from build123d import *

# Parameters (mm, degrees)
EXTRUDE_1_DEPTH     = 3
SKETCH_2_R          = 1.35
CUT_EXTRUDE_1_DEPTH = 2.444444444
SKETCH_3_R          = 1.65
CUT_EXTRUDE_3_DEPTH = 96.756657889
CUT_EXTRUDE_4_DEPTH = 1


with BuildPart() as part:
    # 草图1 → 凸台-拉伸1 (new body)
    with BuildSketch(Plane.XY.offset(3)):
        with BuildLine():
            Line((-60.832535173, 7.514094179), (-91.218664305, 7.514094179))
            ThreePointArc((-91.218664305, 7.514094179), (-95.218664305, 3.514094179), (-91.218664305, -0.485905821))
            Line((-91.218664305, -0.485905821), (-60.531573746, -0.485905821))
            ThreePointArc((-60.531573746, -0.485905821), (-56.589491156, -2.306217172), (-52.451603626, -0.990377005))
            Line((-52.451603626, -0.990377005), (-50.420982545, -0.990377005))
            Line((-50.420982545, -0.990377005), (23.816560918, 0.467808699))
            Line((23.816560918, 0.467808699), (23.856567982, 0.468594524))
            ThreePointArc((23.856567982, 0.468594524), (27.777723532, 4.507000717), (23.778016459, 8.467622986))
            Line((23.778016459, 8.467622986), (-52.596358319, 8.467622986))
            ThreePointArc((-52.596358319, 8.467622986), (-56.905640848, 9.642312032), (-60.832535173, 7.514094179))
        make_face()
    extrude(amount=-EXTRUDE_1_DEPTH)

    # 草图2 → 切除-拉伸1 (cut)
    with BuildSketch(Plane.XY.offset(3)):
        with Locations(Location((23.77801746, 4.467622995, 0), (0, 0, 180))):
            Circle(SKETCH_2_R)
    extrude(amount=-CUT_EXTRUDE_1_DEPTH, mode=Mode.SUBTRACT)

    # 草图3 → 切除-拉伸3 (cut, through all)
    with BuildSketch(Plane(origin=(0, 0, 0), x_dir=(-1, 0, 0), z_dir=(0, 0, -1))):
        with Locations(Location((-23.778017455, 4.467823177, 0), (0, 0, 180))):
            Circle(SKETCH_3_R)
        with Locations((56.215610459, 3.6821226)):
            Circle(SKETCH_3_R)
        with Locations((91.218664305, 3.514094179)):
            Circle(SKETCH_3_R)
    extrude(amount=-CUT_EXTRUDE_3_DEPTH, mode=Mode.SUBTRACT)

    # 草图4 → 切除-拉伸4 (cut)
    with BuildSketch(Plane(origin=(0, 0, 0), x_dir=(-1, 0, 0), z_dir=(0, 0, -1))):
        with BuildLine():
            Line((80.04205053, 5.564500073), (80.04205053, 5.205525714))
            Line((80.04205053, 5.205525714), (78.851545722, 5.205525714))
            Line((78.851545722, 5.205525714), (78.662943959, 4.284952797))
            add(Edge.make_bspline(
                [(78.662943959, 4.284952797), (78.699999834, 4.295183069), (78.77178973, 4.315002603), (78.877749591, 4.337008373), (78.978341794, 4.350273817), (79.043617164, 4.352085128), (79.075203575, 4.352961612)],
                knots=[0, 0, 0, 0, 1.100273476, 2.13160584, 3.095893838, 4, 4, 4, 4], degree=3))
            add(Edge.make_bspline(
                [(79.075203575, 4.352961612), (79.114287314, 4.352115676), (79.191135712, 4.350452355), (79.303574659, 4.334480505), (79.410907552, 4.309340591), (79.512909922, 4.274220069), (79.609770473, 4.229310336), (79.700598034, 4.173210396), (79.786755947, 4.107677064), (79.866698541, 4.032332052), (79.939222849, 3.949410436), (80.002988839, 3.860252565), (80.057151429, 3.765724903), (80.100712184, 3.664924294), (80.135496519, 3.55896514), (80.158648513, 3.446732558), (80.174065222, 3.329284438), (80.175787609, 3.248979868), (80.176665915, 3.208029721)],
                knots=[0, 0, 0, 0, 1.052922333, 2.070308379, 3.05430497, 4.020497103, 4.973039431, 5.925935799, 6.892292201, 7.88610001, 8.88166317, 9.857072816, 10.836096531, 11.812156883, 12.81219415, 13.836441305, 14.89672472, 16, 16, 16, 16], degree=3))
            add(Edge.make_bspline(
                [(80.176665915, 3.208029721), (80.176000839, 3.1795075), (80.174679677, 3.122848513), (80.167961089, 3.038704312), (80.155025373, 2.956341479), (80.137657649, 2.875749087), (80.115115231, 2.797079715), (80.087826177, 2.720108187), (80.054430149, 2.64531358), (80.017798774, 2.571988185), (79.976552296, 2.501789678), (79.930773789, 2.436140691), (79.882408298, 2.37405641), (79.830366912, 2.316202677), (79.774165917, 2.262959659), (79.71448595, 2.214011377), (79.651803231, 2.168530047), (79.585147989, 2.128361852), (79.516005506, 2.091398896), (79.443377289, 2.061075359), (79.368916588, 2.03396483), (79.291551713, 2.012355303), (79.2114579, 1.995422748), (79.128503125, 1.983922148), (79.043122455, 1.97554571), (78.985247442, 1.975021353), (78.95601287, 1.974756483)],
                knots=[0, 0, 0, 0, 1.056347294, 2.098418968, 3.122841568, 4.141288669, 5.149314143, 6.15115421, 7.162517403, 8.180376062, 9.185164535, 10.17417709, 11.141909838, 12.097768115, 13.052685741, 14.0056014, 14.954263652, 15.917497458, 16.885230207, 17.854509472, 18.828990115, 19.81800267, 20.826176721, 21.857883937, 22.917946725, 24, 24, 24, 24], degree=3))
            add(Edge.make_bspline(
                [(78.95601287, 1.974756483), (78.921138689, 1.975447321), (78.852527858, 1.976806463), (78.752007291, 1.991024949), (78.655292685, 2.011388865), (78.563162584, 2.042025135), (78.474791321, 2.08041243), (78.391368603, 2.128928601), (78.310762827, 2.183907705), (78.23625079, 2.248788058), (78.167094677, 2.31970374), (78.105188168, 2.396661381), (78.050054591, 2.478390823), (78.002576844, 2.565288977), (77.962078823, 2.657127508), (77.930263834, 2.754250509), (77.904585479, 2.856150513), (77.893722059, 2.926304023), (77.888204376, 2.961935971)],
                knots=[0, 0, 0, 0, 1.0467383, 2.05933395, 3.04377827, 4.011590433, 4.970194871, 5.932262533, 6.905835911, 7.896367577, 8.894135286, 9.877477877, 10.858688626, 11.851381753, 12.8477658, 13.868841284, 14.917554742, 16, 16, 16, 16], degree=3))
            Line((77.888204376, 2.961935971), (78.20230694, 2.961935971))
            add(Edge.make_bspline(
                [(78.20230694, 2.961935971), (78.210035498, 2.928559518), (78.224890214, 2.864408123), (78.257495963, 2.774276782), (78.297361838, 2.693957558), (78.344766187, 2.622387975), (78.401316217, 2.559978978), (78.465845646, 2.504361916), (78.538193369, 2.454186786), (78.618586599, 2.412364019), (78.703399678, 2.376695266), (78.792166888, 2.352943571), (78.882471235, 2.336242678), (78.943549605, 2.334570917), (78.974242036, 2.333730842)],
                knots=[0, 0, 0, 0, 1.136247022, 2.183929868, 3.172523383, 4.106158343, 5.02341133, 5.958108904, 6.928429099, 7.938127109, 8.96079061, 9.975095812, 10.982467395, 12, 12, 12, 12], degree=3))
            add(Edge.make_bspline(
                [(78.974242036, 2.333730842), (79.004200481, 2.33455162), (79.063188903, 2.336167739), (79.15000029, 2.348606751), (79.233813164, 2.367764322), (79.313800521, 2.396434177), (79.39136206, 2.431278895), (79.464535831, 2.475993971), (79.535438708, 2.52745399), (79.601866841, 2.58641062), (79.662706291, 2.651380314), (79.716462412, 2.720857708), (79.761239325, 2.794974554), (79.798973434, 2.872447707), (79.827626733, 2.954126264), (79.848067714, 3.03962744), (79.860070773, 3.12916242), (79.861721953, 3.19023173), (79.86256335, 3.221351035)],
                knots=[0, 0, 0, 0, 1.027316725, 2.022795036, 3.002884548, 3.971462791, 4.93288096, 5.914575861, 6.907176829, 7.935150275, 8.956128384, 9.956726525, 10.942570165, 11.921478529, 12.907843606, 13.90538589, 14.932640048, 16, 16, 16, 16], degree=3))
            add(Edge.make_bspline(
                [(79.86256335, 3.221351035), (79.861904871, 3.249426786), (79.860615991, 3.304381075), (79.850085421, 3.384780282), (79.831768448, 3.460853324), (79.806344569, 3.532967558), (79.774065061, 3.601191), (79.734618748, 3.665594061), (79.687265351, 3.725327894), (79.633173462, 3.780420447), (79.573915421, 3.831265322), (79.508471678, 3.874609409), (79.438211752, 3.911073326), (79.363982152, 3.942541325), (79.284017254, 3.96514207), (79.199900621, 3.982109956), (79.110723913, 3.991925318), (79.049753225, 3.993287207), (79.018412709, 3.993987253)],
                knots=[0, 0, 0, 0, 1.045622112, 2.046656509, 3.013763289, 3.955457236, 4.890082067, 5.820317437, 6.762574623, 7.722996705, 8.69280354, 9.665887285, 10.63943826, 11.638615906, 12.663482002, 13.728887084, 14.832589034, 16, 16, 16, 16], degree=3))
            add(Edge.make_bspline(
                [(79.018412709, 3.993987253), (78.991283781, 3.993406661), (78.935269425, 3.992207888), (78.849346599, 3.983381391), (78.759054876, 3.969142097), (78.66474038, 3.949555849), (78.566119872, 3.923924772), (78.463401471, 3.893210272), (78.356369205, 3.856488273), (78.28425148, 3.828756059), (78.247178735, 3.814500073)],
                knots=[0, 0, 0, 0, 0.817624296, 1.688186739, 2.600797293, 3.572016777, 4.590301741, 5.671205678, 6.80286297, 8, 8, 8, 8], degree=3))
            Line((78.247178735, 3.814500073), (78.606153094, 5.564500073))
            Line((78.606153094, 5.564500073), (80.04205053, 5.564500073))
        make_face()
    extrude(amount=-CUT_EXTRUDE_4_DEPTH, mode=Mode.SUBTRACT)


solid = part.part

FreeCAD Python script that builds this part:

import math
import FreeCAD as App
import Part
import Sketcher

doc = App.newDocument("Part")
params = doc.addObject("Spreadsheet::Sheet", "Params")
for row, (alias, value) in enumerate([
    ("sketch1_radius", "4 mm"),
    ("sketch1_radius2", "6 mm"),
    ("pad1_length", "3 mm"),
    ("sketch2_diameter", "2.7 mm"),
    ("pocket1_length", "2.444444 mm"),
    ("sketch3_diameter", "3.3 mm"),
    ("pocket3_length", "1 mm"),
], start=1):
    params.set(f"A{row}", alias)
    params.set(f"B{row}", "=" + value)
    params.setAlias(f"B{row}", alias)

body = doc.addObject("PartDesign::Body", "Body")

# Sketch on XY plane
sketch1 = body.newObject("Sketcher::SketchObject", "Sketch")
sketch1.AttachmentSupport = (doc.getObject("XY_Plane"), [""])
sketch1.MapMode = "FlatFace"
sketch1.AttachmentOffset = App.Placement(App.Vector(0, 0, 3), App.Rotation())
sketch1.addGeometry([
    Part.LineSegment(App.Vector(-60.833, 7.514, 0), App.Vector(-91.219, 7.514, 0)),  # 0
    Part.ArcOfCircle(Part.Circle(App.Vector(-91.219, 3.514, 0), App.Vector(0, 0, 1), 4), math.radians(90), math.radians(270)),  # 1
    Part.LineSegment(App.Vector(-91.219, -0.486, 0), App.Vector(-60.532, -0.486, 0)),  # 2
    Part.ArcOfCircle(Part.Circle(App.Vector(-56.216, 3.682, 0), App.Vector(0, 0, 1), 6), math.radians(-136), math.radians(-51)),  # 3
    Part.LineSegment(App.Vector(-52.452, -0.99, 0), App.Vector(-50.421, -0.99, 0)),  # 4
    Part.LineSegment(App.Vector(-50.421, -0.99, 0), App.Vector(23.817, 0.468, 0)),  # 5
    Part.LineSegment(App.Vector(23.817, 0.468, 0), App.Vector(23.857, 0.469, 0)),  # 6
    Part.ArcOfCircle(Part.Circle(App.Vector(23.778, 4.468, 0), App.Vector(0, 0, 1), 4), math.radians(-89), math.radians(90)),  # 7
    Part.LineSegment(App.Vector(23.778, 8.468, 0), App.Vector(-52.596, 8.468, 0)),  # 8
    Part.ArcOfCircle(Part.Circle(App.Vector(-56.216, 3.682, 0), App.Vector(0, 0, 1), 6), math.radians(53), math.radians(140)),  # 9
], False)
sketch1.addConstraint([
    Sketcher.Constraint("Tangent", 0, 2, 1, 1),
    Sketcher.Constraint("Tangent", 1, 2, 2, 1),
    Sketcher.Constraint("Coincident", 2, 2, 3, 1),
    Sketcher.Constraint("Coincident", 3, 2, 4, 1),
    Sketcher.Constraint("Coincident", 4, 2, 5, 1),
    Sketcher.Constraint("Coincident", 5, 2, 6, 1),
    Sketcher.Constraint("Tangent", 6, 2, 7, 1),
    Sketcher.Constraint("Tangent", 7, 2, 8, 1),
    Sketcher.Constraint("Coincident", 8, 2, 9, 1),
    Sketcher.Constraint("Coincident", 9, 2, 0, 1),
    Sketcher.Constraint("Horizontal", 0),
    Sketcher.Constraint("Horizontal", 2),
    Sketcher.Constraint("Horizontal", 4),
    Sketcher.Constraint("Horizontal", 8),
    Sketcher.Constraint("Coincident", 9, 3, 3, 3),
    Sketcher.Constraint("Equal", 3, 9),
    Sketcher.Constraint("Parallel", 5, 6),
    Sketcher.Constraint("Radius", 1, 4.0),
    Sketcher.Constraint("Radius", 3, 6.0),
    Sketcher.Constraint("Radius", 7, 3.9999),
    Sketcher.Constraint("DistanceX", 4, 2, 7, 2, 74.198999),
    Sketcher.Constraint("DistanceY", 4, 2, 7, 2, 9.458),
    Sketcher.Constraint("DistanceX", 0, 2, 0, 1, 30.386129),
    Sketcher.Constraint("DistanceX", 2, 1, 2, 2, 30.687091),
    Sketcher.Constraint("DistanceX", 4, 1, 4, 2, 2.030621),
    Sketcher.Constraint("DistanceY", 3, 3, 7, 3, 0.7856),
    Sketcher.Constraint("DistanceX", 3, 3, -1, 1, 56.21561),
    Sketcher.Constraint("DistanceX", -1, 1, 5, 2, 23.816561),
    Sketcher.Constraint("DistanceY", -1, 1, 5, 2, 0.467809),
])
sketch1.setExpression("Constraints[17]", "Params.sketch1_radius")
sketch1.setExpression("Constraints[18]", "Params.sketch1_radius2")
pad1 = body.newObject("PartDesign::Pad", "Pad")
pad1.Profile = sketch1
pad1.setExpression("Length", "Params.pad1_length")
pad1.Reversed = True

# Sketch on XY plane
sketch2 = body.newObject("Sketcher::SketchObject", "Sketch001")
sketch2.AttachmentSupport = (doc.getObject("XY_Plane"), [""])
sketch2.MapMode = "FlatFace"
sketch2.AttachmentOffset = App.Placement(App.Vector(0, 0, 3), App.Rotation())
sketch2.addGeometry(Part.Circle(App.Vector(23.8, 4.5, 0), App.Vector(0, 0, 1), 1.4), False)
sketch2.addConstraint([
    Sketcher.Constraint("Diameter", 0, 2.7),
    Sketcher.Constraint("DistanceX", -1, 1, 0, 3, 23.778017),
    Sketcher.Constraint("DistanceY", -1, 1, 0, 3, 4.467623),
])
sketch2.setExpression("Constraints[0]", "Params.sketch2_diameter")
pocket1 = body.newObject("PartDesign::Pocket", "Pocket")
pocket1.Profile = sketch2
pocket1.setExpression("Length", "Params.pocket1_length")

# Sketch on XY plane
sketch3 = body.newObject("Sketcher::SketchObject", "Sketch002")
sketch3.AttachmentSupport = (doc.getObject("XY_Plane"), [""])
sketch3.MapMode = "FlatFace"
sketch3.addGeometry([
    Part.Circle(App.Vector(23.8, 4.5, 0), App.Vector(0, 0, 1), 1.6),
    Part.Circle(App.Vector(-56.2, 3.7, 0), App.Vector(0, 0, 1), 1.6),
    Part.Circle(App.Vector(-91.2, 3.5, 0), App.Vector(0, 0, 1), 1.6),
], False)
sketch3.addConstraint([
    Sketcher.Constraint("Equal", 0, 1),
    Sketcher.Constraint("Equal", 1, 2),
    Sketcher.Constraint("Diameter", 0, 3.3),
    Sketcher.Constraint("DistanceY", 1, 3, 0, 3, 0.785701),
    Sketcher.Constraint("DistanceX", 1, 3, -1, 1, 56.21561),
    Sketcher.Constraint("DistanceY", 2, 3, 1, 3, 0.168028),
    Sketcher.Constraint("DistanceX", 2, 3, 0, 3, 114.996682),
    Sketcher.Constraint("DistanceX", -1, 1, 0, 3, 23.778017),
    Sketcher.Constraint("DistanceY", -1, 1, 0, 3, 4.467823),
])
sketch3.setExpression("Constraints[2]", "Params.sketch3_diameter")
pocket2 = body.newObject("PartDesign::Pocket", "Pocket001")
pocket2.Profile = sketch3
pocket2.Type = "ThroughAll"
pocket2.Reversed = True

# Sketch on XY plane
sketch4 = body.newObject("Sketcher::SketchObject", "Sketch003")
sketch4.AttachmentSupport = (doc.getObject("XY_Plane"), [""])
sketch4.MapMode = "FlatFace"
sketch4.addGeometry([
    Part.LineSegment(App.Vector(-80.042051, 5.205526, 0), App.Vector(-80.042051, 5.5645, 0)),  # 0
    Part.LineSegment(App.Vector(-80.042051, 5.5645, 0), App.Vector(-78.606153, 5.5645, 0)),  # 1
    Part.LineSegment(App.Vector(-78.606153, 5.5645, 0), App.Vector(-78.247179, 3.8145, 0)),  # 2
    Part.BSplineCurve([App.Vector(-79.018413, 3.993987, 0), App.Vector(-78.991284, 3.993407, 0), App.Vector(-78.935269, 3.992208, 0), App.Vector(-78.849347, 3.983381, 0), App.Vector(-78.759055, 3.969142, 0), App.Vector(-78.66474, 3.949556, 0), App.Vector(-78.56612, 3.923925, 0), App.Vector(-78.463401, 3.89321, 0), App.Vector(-78.356369, 3.856488, 0), App.Vector(-78.284251, 3.828756, 0), App.Vector(-78.247179, 3.8145, 0)], [4, 1, 1, 1, 1, 1, 1, 1, 4], [0, 0.817624296, 1.688186739, 2.600797293, 3.572016777, 4.590301741, 5.671205678, 6.80286297, 8], False, 3, [1, 1, 1, 1, 1, 1, 1, 1, 1, 1, 1], False),  # 3
    Part.BSplineCurve([App.Vector(-79.862563, 3.221351, 0), App.Vector(-79.861905, 3.249427, 0), App.Vector(-79.860616, 3.304381, 0), App.Vector(-79.850085, 3.38478, 0), App.Vector(-79.831768, 3.460853, 0), App.Vector(-79.806345, 3.532968, 0), App.Vector(-79.774065, 3.601191, 0), App.Vector(-79.734619, 3.665594, 0), App.Vector(-79.687265, 3.725328, 0), App.Vector(-79.633173, 3.78042, 0), App.Vector(-79.573915, 3.831265, 0), App.Vector(-79.508472, 3.874609, 0), App.Vector(-79.438212, 3.911073, 0), App.Vector(-79.363982, 3.942541, 0), App.Vector(-79.284017, 3.965142, 0), App.Vector(-79.199901, 3.98211, 0), App.Vector(-79.110724, 3.991925, 0), App.Vector(-79.049753, 3.993287, 0), App.Vector(-79.018413, 3.993987, 0)], [4, 1, 1, 1, 1, 1, 1, 1, 1, 1, 1, 1, 1, 1, 1, 1, 4], [0, 1.045622112, 2.046656509, 3.013763289, 3.955457236, 4.890082067, 5.820317437, 6.762574623, 7.722996705, 8.69280354, 9.665887285, 10.63943826, 11.638615906, 12.663482002, 13.728887084, 14.832589034, 16], False, 3, [1, 1, 1, 1, 1, 1, 1, 1, 1, 1, 1, 1, 1, 1, 1, 1, 1, 1, 1], False),  # 4
    Part.BSplineCurve([App.Vector(-78.974242, 2.333731, 0), App.Vector(-79.0042, 2.334552, 0), App.Vector(-79.063189, 2.336168, 0), App.Vector(-79.15, 2.348607, 0), App.Vector(-79.233813, 2.367764, 0), App.Vector(-79.313801, 2.396434, 0), App.Vector(-79.391362, 2.431279, 0), App.Vector(-79.464536, 2.475994, 0), App.Vector(-79.535439, 2.527454, 0), App.Vector(-79.601867, 2.586411, 0), App.Vector(-79.662706, 2.65138, 0), App.Vector(-79.716462, 2.720858, 0), App.Vector(-79.761239, 2.794975, 0), App.Vector(-79.798973, 2.872448, 0), App.Vector(-79.827627, 2.954126, 0), App.Vector(-79.848068, 3.039627, 0), App.Vector(-79.860071, 3.129162, 0), App.Vector(-79.861722, 3.190232, 0), App.Vector(-79.862563, 3.221351, 0)], [4, 1, 1, 1, 1, 1, 1, 1, 1, 1, 1, 1, 1, 1, 1, 1, 4], [0, 1.027316725, 2.022795036, 3.002884548, 3.971462791, 4.93288096, 5.914575861, 6.907176829, 7.935150275, 8.956128384, 9.956726525, 10.942570165, 11.921478529, 12.907843606, 13.90538589, 14.932640048, 16], False, 3, [1, 1, 1, 1, 1, 1, 1, 1, 1, 1, 1, 1, 1, 1, 1, 1, 1, 1, 1], False),  # 5
    Part.BSplineCurve([App.Vector(-78.202307, 2.961936, 0), App.Vector(-78.210035, 2.92856, 0), App.Vector(-78.22489, 2.864408, 0), App.Vector(-78.257496, 2.774277, 0), App.Vector(-78.297362, 2.693958, 0), App.Vector(-78.344766, 2.622388, 0), App.Vector(-78.401316, 2.559979, 0), App.Vector(-78.465846, 2.504362, 0), App.Vector(-78.538193, 2.454187, 0), App.Vector(-78.618587, 2.412364, 0), App.Vector(-78.7034, 2.376695, 0), App.Vector(-78.792167, 2.352944, 0), App.Vector(-78.882471, 2.336243, 0), App.Vector(-78.94355, 2.334571, 0), App.Vector(-78.974242, 2.333731, 0)], [4, 1, 1, 1, 1, 1, 1, 1, 1, 1, 1, 1, 4], [0, 1.136247022, 2.183929868, 3.172523383, 4.106158343, 5.02341133, 5.958108904, 6.928429099, 7.938127109, 8.96079061, 9.975095812, 10.982467395, 12], False, 3, [1, 1, 1, 1, 1, 1, 1, 1, 1, 1, 1, 1, 1, 1, 1], False),  # 6
    Part.LineSegment(App.Vector(-78.202307, 2.961936, 0), App.Vector(-77.888204, 2.961936, 0)),  # 7
    Part.BSplineCurve([App.Vector(-78.956013, 1.974756, 0), App.Vector(-78.921139, 1.975447, 0), App.Vector(-78.852528, 1.976806, 0), App.Vector(-78.752007, 1.991025, 0), App.Vector(-78.655293, 2.011389, 0), App.Vector(-78.563163, 2.042025, 0), App.Vector(-78.474791, 2.080412, 0), App.Vector(-78.391369, 2.128929, 0), App.Vector(-78.310763, 2.183908, 0), App.Vector(-78.236251, 2.248788, 0), App.Vector(-78.167095, 2.319704, 0), App.Vector(-78.105188, 2.396661, 0), App.Vector(-78.050055, 2.478391, 0), App.Vector(-78.002577, 2.565289, 0), App.Vector(-77.962079, 2.657128, 0), App.Vector(-77.930264, 2.754251, 0), App.Vector(-77.904585, 2.856151, 0), App.Vector(-77.893722, 2.926304, 0), App.Vector(-77.888204, 2.961936, 0)], [4, 1, 1, 1, 1, 1, 1, 1, 1, 1, 1, 1, 1, 1, 1, 1, 4], [0, 1.0467383, 2.05933395, 3.04377827, 4.011590433, 4.970194871, 5.932262533, 6.905835911, 7.896367577, 8.894135286, 9.877477877, 10.858688626, 11.851381753, 12.8477658, 13.868841284, 14.917554742, 16], False, 3, [1, 1, 1, 1, 1, 1, 1, 1, 1, 1, 1, 1, 1, 1, 1, 1, 1, 1, 1], False),  # 8
    Part.BSplineCurve([App.Vector(-80.176666, 3.20803, 0), App.Vector(-80.176001, 3.179508, 0), App.Vector(-80.17468, 3.122849, 0), App.Vector(-80.167961, 3.038704, 0), App.Vector(-80.155025, 2.956341, 0), App.Vector(-80.137658, 2.875749, 0), App.Vector(-80.115115, 2.79708, 0), App.Vector(-80.087826, 2.720108, 0), App.Vector(-80.05443, 2.645314, 0), App.Vector(-80.017799, 2.571988, 0), App.Vector(-79.976552, 2.50179, 0), App.Vector(-79.930774, 2.436141, 0), App.Vector(-79.882408, 2.374056, 0), App.Vector(-79.830367, 2.316203, 0), App.Vector(-79.774166, 2.26296, 0), App.Vector(-79.714486, 2.214011, 0), App.Vector(-79.651803, 2.16853, 0), App.Vector(-79.585148, 2.128362, 0), App.Vector(-79.516006, 2.091399, 0), App.Vector(-79.443377, 2.061075, 0), App.Vector(-79.368917, 2.033965, 0), App.Vector(-79.291552, 2.012355, 0), App.Vector(-79.211458, 1.995423, 0), App.Vector(-79.128503, 1.983922, 0), App.Vector(-79.043122, 1.975546, 0), App.Vector(-78.985247, 1.975021, 0), App.Vector(-78.956013, 1.974756, 0)], [4, 1, 1, 1, 1, 1, 1, 1, 1, 1, 1, 1, 1, 1, 1, 1, 1, 1, 1, 1, 1, 1, 1, 1, 4], [0, 1.056347294, 2.098418968, 3.122841568, 4.141288669, 5.149314143, 6.15115421, 7.162517403, 8.180376062, 9.185164535, 10.17417709, 11.141909838, 12.097768115, 13.052685741, 14.0056014, 14.954263652, 15.917497458, 16.885230207, 17.854509472, 18.828990115, 19.81800267, 20.826176721, 21.857883937, 22.917946725, 24], False, 3, [1, 1, 1, 1, 1, 1, 1, 1, 1, 1, 1, 1, 1, 1, 1, 1, 1, 1, 1, 1, 1, 1, 1, 1, 1, 1, 1], False),  # 9
    Part.BSplineCurve([App.Vector(-79.075204, 4.352962, 0), App.Vector(-79.114287, 4.352116, 0), App.Vector(-79.191136, 4.350452, 0), App.Vector(-79.303575, 4.334481, 0), App.Vector(-79.410908, 4.309341, 0), App.Vector(-79.51291, 4.27422, 0), App.Vector(-79.60977, 4.22931, 0), App.Vector(-79.700598, 4.17321, 0), App.Vector(-79.786756, 4.107677, 0), App.Vector(-79.866699, 4.032332, 0), App.Vector(-79.939223, 3.94941, 0), App.Vector(-80.002989, 3.860253, 0), App.Vector(-80.057151, 3.765725, 0), App.Vector(-80.100712, 3.664924, 0), App.Vector(-80.135497, 3.558965, 0), App.Vector(-80.158649, 3.446733, 0), App.Vector(-80.174065, 3.329284, 0), App.Vector(-80.175788, 3.24898, 0), App.Vector(-80.176666, 3.20803, 0)], [4, 1, 1, 1, 1, 1, 1, 1, 1, 1, 1, 1, 1, 1, 1, 1, 4], [0, 1.052922333, 2.070308379, 3.05430497, 4.020497103, 4.973039431, 5.925935799, 6.892292201, 7.88610001, 8.88166317, 9.857072816, 10.836096531, 11.812156883, 12.81219415, 13.836441305, 14.89672472, 16], False, 3, [1, 1, 1, 1, 1, 1, 1, 1, 1, 1, 1, 1, 1, 1, 1, 1, 1, 1, 1], False),  # 10
    Part.BSplineCurve([App.Vector(-78.662944, 4.284953, 0), App.Vector(-78.7, 4.295183, 0), App.Vector(-78.77179, 4.315003, 0), App.Vector(-78.87775, 4.337008, 0), App.Vector(-78.978342, 4.350274, 0), App.Vector(-79.043617, 4.352085, 0), App.Vector(-79.075204, 4.352962, 0)], [4, 1, 1, 1, 4], [0, 1.100273476, 2.13160584, 3.095893838, 4], False, 3, [1, 1, 1, 1, 1, 1, 1], False),  # 11
    Part.LineSegment(App.Vector(-78.662944, 4.284953, 0), App.Vector(-78.851546, 5.205526, 0)),  # 12
    Part.LineSegment(App.Vector(-78.851546, 5.205526, 0), App.Vector(-80.042051, 5.205526, 0)),  # 13
], False)
sketch4.addConstraint([
    Sketcher.Constraint("Block", 3),
    Sketcher.Constraint("Block", 4),
    Sketcher.Constraint("Block", 5),
    Sketcher.Constraint("Block", 6),
    Sketcher.Constraint("Block", 8),
    Sketcher.Constraint("Block", 9),
    Sketcher.Constraint("Block", 10),
    Sketcher.Constraint("Block", 11),
    Sketcher.Constraint("Coincident", 0, 2, 1, 1),
    Sketcher.Constraint("Coincident", 1, 2, 2, 1),
    Sketcher.Constraint("Coincident", 2, 2, 3, 2),
    Sketcher.Constraint("Coincident", 6, 1, 7, 1),
    Sketcher.Constraint("Coincident", 7, 2, 8, 2),
    Sketcher.Constraint("Coincident", 11, 1, 12, 1),
    Sketcher.Constraint("Coincident", 12, 2, 13, 1),
    Sketcher.Constraint("Coincident", 13, 2, 0, 1),
    Sketcher.Constraint("Vertical", 0),
    Sketcher.Constraint("Horizontal", 1),
    Sketcher.Constraint("Horizontal", 13),
    Sketcher.Constraint("DistanceY", 2, 2, 1, 2, 1.75),
    Sketcher.Constraint("Distance", 2, 1.786439),
    Sketcher.Constraint("DistanceX", 1, 1, 1, 2, 1.435897),
    Sketcher.Constraint("DistanceX", 13, 2, 13, 1, 1.190505),
    Sketcher.Constraint("DistanceY", 0, 1, 0, 2, 0.358974),
])
pocket3 = body.newObject("PartDesign::Pocket", "Pocket002")
pocket3.Profile = sketch4
pocket3.setExpression("Length", "Params.pocket3_length")
pocket3.Reversed = True

doc.recompute()
